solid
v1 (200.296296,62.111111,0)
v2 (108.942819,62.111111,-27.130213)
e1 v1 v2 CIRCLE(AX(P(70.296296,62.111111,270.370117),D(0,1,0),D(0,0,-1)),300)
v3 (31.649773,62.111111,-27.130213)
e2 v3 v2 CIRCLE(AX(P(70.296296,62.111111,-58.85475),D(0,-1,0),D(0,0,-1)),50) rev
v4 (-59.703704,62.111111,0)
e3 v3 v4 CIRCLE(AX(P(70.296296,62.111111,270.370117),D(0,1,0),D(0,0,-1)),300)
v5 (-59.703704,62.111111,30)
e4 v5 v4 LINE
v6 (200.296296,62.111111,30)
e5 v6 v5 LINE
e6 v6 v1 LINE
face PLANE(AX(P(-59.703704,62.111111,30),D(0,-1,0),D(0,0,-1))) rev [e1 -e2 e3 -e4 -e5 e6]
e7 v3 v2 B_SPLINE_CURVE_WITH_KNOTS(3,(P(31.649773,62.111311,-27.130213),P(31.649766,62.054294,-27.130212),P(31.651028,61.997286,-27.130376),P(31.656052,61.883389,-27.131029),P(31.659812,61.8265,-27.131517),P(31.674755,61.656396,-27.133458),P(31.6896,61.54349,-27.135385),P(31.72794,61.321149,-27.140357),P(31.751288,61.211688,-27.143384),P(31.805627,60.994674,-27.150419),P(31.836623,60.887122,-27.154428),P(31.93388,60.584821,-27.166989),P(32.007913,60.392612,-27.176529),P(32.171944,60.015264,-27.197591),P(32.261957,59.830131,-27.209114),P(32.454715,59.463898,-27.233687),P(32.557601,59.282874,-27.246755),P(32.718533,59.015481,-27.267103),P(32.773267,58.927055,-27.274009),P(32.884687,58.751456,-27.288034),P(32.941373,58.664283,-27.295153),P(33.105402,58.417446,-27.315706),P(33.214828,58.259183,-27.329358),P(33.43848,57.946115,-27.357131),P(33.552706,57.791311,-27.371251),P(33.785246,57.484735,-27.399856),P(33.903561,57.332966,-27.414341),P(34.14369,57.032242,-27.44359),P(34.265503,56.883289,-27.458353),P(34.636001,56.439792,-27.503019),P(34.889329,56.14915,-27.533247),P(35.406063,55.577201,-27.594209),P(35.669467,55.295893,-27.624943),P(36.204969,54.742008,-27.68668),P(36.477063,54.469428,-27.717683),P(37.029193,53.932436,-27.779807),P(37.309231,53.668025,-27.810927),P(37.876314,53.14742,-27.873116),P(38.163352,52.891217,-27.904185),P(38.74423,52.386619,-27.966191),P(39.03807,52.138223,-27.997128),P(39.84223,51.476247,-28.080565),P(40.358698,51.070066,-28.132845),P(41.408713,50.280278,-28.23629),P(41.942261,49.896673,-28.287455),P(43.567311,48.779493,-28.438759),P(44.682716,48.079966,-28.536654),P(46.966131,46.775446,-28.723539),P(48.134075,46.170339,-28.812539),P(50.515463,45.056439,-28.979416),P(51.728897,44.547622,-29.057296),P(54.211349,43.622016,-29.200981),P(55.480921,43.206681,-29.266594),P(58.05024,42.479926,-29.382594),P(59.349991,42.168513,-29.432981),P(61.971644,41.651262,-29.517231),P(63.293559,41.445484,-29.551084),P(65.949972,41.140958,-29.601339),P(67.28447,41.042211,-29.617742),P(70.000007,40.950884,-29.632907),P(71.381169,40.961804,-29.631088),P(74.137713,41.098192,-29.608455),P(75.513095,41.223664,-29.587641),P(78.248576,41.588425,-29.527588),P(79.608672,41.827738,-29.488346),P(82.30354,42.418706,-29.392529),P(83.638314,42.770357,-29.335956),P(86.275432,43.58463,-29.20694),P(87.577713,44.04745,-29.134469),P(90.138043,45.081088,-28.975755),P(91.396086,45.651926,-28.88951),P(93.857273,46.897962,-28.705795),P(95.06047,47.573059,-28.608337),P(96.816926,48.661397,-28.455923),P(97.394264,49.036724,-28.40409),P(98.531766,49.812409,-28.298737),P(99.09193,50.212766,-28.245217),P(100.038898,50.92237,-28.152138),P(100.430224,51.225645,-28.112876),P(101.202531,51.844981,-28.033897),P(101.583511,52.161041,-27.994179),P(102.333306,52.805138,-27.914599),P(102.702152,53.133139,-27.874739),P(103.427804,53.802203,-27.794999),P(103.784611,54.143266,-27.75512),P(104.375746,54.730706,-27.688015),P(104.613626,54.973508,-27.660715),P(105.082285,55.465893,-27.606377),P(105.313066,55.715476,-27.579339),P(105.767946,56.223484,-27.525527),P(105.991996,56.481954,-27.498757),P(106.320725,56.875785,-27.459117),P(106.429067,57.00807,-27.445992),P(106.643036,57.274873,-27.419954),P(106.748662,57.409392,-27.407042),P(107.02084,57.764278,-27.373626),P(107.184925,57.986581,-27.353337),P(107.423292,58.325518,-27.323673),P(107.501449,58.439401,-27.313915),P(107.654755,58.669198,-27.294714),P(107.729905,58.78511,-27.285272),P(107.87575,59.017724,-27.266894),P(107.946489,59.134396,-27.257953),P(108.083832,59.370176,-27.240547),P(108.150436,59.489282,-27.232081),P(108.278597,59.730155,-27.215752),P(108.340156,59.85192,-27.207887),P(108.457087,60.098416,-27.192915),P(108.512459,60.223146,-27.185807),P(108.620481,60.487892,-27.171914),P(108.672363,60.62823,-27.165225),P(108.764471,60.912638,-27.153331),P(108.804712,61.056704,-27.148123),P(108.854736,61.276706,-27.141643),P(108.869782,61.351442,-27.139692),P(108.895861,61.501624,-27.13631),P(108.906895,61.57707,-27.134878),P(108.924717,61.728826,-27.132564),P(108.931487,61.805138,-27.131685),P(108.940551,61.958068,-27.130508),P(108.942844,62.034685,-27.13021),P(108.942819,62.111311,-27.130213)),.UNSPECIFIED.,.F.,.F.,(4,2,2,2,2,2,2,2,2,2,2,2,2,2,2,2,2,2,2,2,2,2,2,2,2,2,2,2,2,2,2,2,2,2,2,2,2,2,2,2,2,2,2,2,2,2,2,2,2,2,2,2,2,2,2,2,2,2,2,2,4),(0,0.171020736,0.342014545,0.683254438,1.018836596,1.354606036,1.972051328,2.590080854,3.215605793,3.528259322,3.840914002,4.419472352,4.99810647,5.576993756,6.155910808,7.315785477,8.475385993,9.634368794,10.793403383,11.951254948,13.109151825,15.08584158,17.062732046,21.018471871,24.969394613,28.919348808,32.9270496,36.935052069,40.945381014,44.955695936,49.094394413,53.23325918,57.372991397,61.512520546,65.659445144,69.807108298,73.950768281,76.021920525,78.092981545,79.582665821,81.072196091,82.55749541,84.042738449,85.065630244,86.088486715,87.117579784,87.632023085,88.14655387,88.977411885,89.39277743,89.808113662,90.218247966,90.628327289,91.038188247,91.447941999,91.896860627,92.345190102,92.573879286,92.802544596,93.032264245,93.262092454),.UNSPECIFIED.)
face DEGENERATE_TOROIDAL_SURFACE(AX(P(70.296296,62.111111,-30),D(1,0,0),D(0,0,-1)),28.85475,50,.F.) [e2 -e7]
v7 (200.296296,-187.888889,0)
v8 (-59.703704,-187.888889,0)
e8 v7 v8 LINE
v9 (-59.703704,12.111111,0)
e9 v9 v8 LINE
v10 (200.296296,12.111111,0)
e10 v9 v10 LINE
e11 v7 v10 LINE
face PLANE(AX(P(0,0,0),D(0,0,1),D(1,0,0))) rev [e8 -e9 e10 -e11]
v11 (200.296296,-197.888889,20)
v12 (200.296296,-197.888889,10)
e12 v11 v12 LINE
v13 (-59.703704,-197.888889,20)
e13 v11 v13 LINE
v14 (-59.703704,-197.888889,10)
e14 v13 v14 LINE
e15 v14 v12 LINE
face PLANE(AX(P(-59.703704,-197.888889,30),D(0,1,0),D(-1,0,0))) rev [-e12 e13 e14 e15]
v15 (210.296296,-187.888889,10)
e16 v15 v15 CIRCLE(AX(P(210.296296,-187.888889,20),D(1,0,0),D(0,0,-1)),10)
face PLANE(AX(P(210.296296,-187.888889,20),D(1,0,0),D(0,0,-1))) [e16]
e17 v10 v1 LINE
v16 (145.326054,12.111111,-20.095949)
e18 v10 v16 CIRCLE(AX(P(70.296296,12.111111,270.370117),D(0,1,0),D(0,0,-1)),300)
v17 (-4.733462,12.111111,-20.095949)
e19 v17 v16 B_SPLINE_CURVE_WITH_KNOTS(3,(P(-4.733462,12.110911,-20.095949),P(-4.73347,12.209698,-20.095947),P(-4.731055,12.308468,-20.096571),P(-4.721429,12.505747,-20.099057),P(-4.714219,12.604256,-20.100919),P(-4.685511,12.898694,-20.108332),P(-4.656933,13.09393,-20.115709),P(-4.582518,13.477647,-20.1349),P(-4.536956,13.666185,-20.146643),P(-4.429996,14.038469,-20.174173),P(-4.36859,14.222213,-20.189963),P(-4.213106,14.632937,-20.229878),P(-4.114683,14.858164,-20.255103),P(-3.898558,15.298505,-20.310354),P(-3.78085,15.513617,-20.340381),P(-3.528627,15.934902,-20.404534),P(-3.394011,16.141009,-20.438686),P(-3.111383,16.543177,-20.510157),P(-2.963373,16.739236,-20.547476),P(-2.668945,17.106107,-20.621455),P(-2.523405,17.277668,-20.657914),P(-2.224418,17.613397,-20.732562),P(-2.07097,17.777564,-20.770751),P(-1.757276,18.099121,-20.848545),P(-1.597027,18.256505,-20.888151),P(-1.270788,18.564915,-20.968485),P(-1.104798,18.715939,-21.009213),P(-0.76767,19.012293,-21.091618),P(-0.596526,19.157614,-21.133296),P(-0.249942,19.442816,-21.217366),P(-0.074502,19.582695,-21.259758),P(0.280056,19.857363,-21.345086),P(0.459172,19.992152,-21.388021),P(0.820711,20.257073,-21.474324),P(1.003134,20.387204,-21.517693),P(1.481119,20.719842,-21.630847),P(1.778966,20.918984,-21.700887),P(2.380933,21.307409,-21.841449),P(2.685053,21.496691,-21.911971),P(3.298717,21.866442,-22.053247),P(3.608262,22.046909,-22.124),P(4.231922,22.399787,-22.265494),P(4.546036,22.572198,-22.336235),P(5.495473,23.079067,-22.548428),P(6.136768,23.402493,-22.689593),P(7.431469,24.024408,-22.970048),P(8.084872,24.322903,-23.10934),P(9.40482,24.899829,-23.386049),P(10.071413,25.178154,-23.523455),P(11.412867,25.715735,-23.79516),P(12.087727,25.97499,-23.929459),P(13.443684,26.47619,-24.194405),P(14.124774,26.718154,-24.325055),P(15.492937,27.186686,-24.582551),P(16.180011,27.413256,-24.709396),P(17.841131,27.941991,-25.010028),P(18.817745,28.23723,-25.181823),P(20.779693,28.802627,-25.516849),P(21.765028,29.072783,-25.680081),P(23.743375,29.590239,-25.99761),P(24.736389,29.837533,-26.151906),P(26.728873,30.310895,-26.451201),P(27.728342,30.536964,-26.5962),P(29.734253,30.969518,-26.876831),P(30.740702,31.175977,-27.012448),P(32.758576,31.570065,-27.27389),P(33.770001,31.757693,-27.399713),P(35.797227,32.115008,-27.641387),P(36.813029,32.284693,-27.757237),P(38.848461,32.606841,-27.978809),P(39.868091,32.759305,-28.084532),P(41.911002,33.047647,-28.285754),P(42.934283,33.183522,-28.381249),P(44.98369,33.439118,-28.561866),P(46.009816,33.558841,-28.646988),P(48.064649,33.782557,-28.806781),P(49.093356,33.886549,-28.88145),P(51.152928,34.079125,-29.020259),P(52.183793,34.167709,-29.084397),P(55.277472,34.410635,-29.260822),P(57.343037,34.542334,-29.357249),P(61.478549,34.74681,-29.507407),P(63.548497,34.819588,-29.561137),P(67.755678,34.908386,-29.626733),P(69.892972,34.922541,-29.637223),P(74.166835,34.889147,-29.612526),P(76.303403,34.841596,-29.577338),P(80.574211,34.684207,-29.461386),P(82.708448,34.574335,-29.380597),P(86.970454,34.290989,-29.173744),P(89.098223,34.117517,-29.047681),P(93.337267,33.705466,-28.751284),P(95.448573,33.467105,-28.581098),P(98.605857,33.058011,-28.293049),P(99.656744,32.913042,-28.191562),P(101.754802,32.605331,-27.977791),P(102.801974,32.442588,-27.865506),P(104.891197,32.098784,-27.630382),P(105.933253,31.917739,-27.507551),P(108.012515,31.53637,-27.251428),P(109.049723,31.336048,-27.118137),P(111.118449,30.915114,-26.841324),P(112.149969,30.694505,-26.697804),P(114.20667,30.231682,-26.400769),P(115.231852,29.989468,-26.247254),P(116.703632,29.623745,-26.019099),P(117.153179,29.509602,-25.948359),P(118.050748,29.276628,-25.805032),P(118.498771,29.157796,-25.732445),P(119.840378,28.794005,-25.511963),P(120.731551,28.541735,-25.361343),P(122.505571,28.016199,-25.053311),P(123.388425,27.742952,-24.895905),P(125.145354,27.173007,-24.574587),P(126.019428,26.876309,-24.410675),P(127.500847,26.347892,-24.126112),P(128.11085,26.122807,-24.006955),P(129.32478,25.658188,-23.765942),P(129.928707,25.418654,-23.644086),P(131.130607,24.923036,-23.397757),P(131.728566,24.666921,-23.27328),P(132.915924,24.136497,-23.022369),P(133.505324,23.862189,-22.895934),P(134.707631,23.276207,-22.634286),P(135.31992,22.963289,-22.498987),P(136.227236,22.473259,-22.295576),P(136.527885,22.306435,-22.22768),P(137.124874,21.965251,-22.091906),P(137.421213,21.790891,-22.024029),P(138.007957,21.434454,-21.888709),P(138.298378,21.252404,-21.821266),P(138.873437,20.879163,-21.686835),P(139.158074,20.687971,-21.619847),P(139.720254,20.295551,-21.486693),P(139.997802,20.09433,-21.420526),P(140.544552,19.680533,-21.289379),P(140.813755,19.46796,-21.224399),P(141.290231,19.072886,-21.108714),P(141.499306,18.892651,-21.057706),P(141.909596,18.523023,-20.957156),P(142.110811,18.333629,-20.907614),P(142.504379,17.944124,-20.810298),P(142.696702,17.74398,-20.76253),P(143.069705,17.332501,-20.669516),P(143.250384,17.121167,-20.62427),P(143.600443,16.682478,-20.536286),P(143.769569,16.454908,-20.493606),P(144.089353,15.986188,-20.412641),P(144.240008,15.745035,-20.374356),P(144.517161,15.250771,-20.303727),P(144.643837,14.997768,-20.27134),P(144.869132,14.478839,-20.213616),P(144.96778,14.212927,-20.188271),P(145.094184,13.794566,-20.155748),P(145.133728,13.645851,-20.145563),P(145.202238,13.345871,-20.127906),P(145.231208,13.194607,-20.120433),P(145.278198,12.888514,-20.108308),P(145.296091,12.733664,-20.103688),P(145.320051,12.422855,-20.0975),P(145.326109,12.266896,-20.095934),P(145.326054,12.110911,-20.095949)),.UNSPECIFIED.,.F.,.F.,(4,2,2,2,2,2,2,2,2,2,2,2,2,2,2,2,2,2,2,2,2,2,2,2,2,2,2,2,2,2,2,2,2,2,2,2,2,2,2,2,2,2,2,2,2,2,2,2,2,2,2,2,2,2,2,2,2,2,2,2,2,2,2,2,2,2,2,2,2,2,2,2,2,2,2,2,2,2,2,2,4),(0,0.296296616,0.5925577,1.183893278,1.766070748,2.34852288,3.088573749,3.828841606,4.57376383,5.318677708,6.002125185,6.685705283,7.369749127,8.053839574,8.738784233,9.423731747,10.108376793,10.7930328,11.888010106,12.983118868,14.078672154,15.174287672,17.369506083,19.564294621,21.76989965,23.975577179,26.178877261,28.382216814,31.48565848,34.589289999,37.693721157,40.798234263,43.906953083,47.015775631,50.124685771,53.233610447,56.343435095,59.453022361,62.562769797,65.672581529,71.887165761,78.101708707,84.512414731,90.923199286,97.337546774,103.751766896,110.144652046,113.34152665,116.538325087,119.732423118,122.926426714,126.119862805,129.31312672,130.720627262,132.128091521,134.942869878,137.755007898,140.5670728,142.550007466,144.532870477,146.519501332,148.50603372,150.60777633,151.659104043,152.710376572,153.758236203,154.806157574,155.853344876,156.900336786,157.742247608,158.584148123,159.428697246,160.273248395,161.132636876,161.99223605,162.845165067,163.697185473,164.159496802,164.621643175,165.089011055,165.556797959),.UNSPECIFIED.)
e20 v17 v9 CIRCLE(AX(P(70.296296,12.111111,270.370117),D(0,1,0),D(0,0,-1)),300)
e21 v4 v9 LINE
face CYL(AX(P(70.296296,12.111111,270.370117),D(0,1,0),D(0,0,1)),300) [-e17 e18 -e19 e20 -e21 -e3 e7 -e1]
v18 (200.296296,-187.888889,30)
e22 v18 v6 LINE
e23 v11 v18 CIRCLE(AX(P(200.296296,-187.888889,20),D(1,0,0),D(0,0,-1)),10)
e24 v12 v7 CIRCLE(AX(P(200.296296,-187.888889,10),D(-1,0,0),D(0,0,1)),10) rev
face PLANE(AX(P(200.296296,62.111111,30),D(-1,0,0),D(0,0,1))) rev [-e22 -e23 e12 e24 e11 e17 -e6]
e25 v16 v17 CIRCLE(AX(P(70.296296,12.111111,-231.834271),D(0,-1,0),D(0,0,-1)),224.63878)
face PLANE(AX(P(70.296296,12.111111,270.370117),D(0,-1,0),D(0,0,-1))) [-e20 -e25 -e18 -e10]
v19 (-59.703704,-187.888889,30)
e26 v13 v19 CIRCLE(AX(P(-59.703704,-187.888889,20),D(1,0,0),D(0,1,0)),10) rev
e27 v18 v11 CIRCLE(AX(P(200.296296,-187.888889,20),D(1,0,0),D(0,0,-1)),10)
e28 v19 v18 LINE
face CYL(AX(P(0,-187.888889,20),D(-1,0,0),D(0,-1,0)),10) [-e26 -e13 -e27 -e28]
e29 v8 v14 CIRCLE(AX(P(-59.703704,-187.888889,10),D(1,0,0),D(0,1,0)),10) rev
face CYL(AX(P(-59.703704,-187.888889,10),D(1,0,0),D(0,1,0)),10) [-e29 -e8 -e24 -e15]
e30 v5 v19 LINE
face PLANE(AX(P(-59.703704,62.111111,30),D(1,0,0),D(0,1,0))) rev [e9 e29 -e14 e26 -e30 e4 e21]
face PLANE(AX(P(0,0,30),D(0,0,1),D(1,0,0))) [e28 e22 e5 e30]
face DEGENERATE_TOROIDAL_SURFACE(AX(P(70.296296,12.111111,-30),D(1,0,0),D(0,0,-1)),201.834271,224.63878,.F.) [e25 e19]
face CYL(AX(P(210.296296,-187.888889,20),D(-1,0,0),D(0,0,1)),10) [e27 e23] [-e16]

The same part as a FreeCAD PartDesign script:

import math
import FreeCAD as App
import Part
import Sketcher


def edges_at(feature, points):
    """Names of the edges that pass closest to the given points."""
    edges = feature.Shape.Edges
    near = lambda p: min(range(len(edges)), key=lambda i: edges[i].distToShape(Part.Vertex(*p))[0])
    return sorted({f"Edge{near(p) + 1}" for p in points})

doc = App.newDocument("Part")
params = doc.addObject("Spreadsheet::Sheet", "Params")
for row, (alias, value) in enumerate([
    ("sketch1_width", "260 mm"),
    ("pad1_length", "30 mm"),
    ("sketch2_diameter", "20 mm"),
    ("pad2_length", "10 mm"),
    ("sketch3_radius", "300 mm"),
    ("sketch3_width", "260 mm"),
    ("pad3_length", "50 mm"),
    ("fillet_radius", "10 mm"),
    ("sketch4_radius", "50 mm"),
    ("groove_angle", "360 deg"),
    ("groove2_angle", "360 deg"),
], start=1):
    params.set(f"A{row}", alias)
    params.set(f"B{row}", "=" + value)
    params.setAlias(f"B{row}", alias)

body = doc.addObject("PartDesign::Body", "Body")

# Sketch on XY plane
sketch1 = doc.addObject("Sketcher::SketchObject", "Sketch")
body.addObject(sketch1)
sketch1.AttachmentSupport = (doc.XY_Plane, [""])
sketch1.MapMode = "FlatFace"
sketch1.addGeometry([
    Part.LineSegment(App.Vector(-60, 62, 0), App.Vector(-60, -198, 0)),
    Part.LineSegment(App.Vector(-60, -198, 0), App.Vector(200, -198, 0)),
    Part.LineSegment(App.Vector(200, -198, 0), App.Vector(200, 62, 0)),
    Part.LineSegment(App.Vector(200, 62, 0), App.Vector(-60, 62, 0)),
], False)
sketch1.addConstraint([
    Sketcher.Constraint("Coincident", 0, 2, 1, 1),
    Sketcher.Constraint("Coincident", 1, 2, 2, 1),
    Sketcher.Constraint("Coincident", 2, 2, 3, 1),
    Sketcher.Constraint("Coincident", 3, 2, 0, 1),
    Sketcher.Constraint("Vertical", 0),
    Sketcher.Constraint("Horizontal", 1),
    Sketcher.Constraint("Vertical", 2),
    Sketcher.Constraint("Horizontal", 3),
    Sketcher.Constraint("Equal", 3, 0),
    Sketcher.Constraint("DistanceX", 1, 1, 1, 2, 260.0),
    Sketcher.Constraint("DistanceY", 0, 2, -1, 1, 197.888889),
    Sketcher.Constraint("DistanceX", 0, 2, -1, 1, 59.703704),
])
sketch1.setExpression("Constraints[9]", "Params.sketch1_width")
pad1 = doc.addObject("PartDesign::Pad", "Pad")
body.addObject(pad1)
pad1.Profile = sketch1
pad1.setExpression("Length", "Params.pad1_length")

# Sketch on YZ plane
sketch2 = doc.addObject("Sketcher::SketchObject", "Sketch001")
body.addObject(sketch2)
sketch2.AttachmentSupport = (doc.YZ_Plane, [""])
sketch2.MapMode = "FlatFace"
sketch2.AttachmentOffset = App.Placement(App.Vector(0, 0, 200.296296), App.Rotation())
sketch2.addGeometry(Part.Circle(App.Vector(-188, 20, 0), App.Vector(0, 0, 1), 10), False)
sketch2.addConstraint([
    Sketcher.Constraint("Diameter", 0, 20.0),
    Sketcher.Constraint("DistanceY", -1, 1, 0, 3, 20.0),
    Sketcher.Constraint("DistanceX", 0, 3, -1, 1, 187.888889),
])
sketch2.setExpression("Constraints[0]", "Params.sketch2_diameter")
pad2 = doc.addObject("PartDesign::Pad", "Pad001")
body.addObject(pad2)
pad2.Profile = sketch2
pad2.setExpression("Length", "Params.pad2_length")

# Sketch on XZ plane
sketch3 = doc.addObject("Sketcher::SketchObject", "Sketch002")
body.addObject(sketch3)
sketch3.AttachmentSupport = (doc.XZ_Plane, [""])
sketch3.MapMode = "FlatFace"
sketch3.AttachmentOffset = App.Placement(App.Vector(0, 0, -62.111111), App.Rotation())
sketch3.addGeometry([
    Part.LineSegment(App.Vector(-60, 0, 0), App.Vector(200, 0, 0)),
    Part.ArcOfCircle(Part.Circle(App.Vector(70, 270, 0), App.Vector(0, 0, 1), 300), math.radians(-116), math.radians(-64)),
], False)
sketch3.addConstraint([
    Sketcher.Constraint("Coincident", 0, 1, 1, 1),
    Sketcher.Constraint("Coincident", 1, 2, 0, 2),
    Sketcher.Constraint("Horizontal", 0),
    Sketcher.Constraint("PointOnObject", 0, 1, -1),
    Sketcher.Constraint("Radius", 1, 300.0),
    Sketcher.Constraint("DistanceX", 0, 1, 0, 2, 260.0),
    Sketcher.Constraint("DistanceX", -1, 1, 1, 3, 70.296296),
])
sketch3.setExpression("Constraints[4]", "Params.sketch3_radius")
sketch3.setExpression("Constraints[5]", "Params.sketch3_width")
pad3 = doc.addObject("PartDesign::Pad", "Pad002")
body.addObject(pad3)
pad3.Profile = sketch3
pad3.setExpression("Length", "Params.pad3_length")
doc.recompute()

fillet = doc.addObject("PartDesign::Fillet", "Fillet")
body.addObject(fillet)
fillet.Base = (pad3, edges_at(pad3, [(70.296, -197.889, 30), (70.296, -197.889, 0)]))
fillet.setExpression("Radius", "Params.fillet_radius")

# Sketch on XY plane
sketch4 = doc.addObject("Sketcher::SketchObject", "Sketch003")
body.addObject(sketch4)
sketch4.AttachmentSupport = (doc.XY_Plane, [""])
sketch4.MapMode = "FlatFace"
sketch4.AttachmentOffset = App.Placement(App.Vector(0, 0, -30), App.Rotation())
sketch4.addGeometry([
    Part.LineSegment(App.Vector(111, 62, 0), App.Vector(29, 62, 0)),
    Part.ArcOfCircle(Part.Circle(App.Vector(70, 33, 0), App.Vector(0, 0, 1), 50), math.radians(35), math.radians(145)),
], False)
sketch4.addGeometry(Part.LineSegment(App.Vector(111, 62, 0), App.Vector(29, 62, 0)), True)  # axis
sketch4.addConstraint([
    Sketcher.Constraint("Coincident", 0, 1, 1, 1),
    Sketcher.Constraint("Coincident", 1, 2, 0, 2),
    Sketcher.Constraint("Horizontal", 0),
    Sketcher.Constraint("Horizontal", 2),
    Sketcher.Constraint("Coincident", 2, 1, 0, 1),
    Sketcher.Constraint("Equal", 0, 2),
    Sketcher.Constraint("Radius", 1, 50.0),
    Sketcher.Constraint("DistanceX", 0, 2, 0, 1, 81.667702),
    Sketcher.Constraint("DistanceY", -1, 1, 1, 3, 33.256361),
    Sketcher.Constraint("DistanceX", -1, 1, 1, 3, 70.296296),
])
sketch4.setExpression("Constraints[6]", "Params.sketch4_radius")
groove = doc.addObject("PartDesign::Groove", "Groove")
body.addObject(groove)
groove.Profile = sketch4
groove.ReferenceAxis = (sketch4, ["Axis0"])
groove.setExpression("Angle", "Params.groove_angle")

# Sketch on XY plane
sketch5 = doc.addObject("Sketcher::SketchObject", "Sketch004")
body.addObject(sketch5)
sketch5.AttachmentSupport = (doc.XY_Plane, [""])
sketch5.MapMode = "FlatFace"
sketch5.AttachmentOffset = App.Placement(App.Vector(0, 0, -30), App.Rotation())
sketch5.addGeometry([
    Part.LineSegment(App.Vector(-28, 12, 0), App.Vector(169, 12, 0)),
    Part.ArcOfCircle(Part.Circle(App.Vector(70, 214, 0), App.Vector(0, 0, 1), 225), math.radians(-116), math.radians(-64)),
], False)
sketch5.addGeometry(Part.LineSegment(App.Vector(169, 12, 0), App.Vector(-28, 12, 0)), True)  # axis
sketch5.addConstraint([
    Sketcher.Constraint("Coincident", 0, 1, 1, 1),
    Sketcher.Constraint("Coincident", 1, 2, 0, 2),
    Sketcher.Constraint("Horizontal", 0),
    Sketcher.Constraint("Horizontal", 2),
    Sketcher.Constraint("Coincident", 2, 1, 1, 2),
    Sketcher.Constraint("Equal", 0, 2),
    Sketcher.Constraint("Radius", 1, 224.63878),
    Sketcher.Constraint("DistanceX", 0, 1, 0, 2, 197.235986),
    Sketcher.Constraint("DistanceY", -1, 1, 0, 1, 12.111111),
    Sketcher.Constraint("DistanceX", -1, 1, 1, 2, 168.914289),
])
groove2 = doc.addObject("PartDesign::Groove", "Groove001")
body.addObject(groove2)
groove2.Profile = sketch5
groove2.ReferenceAxis = (sketch5, ["Axis0"])
groove2.setExpression("Angle", "Params.groove2_angle")

doc.recompute()
